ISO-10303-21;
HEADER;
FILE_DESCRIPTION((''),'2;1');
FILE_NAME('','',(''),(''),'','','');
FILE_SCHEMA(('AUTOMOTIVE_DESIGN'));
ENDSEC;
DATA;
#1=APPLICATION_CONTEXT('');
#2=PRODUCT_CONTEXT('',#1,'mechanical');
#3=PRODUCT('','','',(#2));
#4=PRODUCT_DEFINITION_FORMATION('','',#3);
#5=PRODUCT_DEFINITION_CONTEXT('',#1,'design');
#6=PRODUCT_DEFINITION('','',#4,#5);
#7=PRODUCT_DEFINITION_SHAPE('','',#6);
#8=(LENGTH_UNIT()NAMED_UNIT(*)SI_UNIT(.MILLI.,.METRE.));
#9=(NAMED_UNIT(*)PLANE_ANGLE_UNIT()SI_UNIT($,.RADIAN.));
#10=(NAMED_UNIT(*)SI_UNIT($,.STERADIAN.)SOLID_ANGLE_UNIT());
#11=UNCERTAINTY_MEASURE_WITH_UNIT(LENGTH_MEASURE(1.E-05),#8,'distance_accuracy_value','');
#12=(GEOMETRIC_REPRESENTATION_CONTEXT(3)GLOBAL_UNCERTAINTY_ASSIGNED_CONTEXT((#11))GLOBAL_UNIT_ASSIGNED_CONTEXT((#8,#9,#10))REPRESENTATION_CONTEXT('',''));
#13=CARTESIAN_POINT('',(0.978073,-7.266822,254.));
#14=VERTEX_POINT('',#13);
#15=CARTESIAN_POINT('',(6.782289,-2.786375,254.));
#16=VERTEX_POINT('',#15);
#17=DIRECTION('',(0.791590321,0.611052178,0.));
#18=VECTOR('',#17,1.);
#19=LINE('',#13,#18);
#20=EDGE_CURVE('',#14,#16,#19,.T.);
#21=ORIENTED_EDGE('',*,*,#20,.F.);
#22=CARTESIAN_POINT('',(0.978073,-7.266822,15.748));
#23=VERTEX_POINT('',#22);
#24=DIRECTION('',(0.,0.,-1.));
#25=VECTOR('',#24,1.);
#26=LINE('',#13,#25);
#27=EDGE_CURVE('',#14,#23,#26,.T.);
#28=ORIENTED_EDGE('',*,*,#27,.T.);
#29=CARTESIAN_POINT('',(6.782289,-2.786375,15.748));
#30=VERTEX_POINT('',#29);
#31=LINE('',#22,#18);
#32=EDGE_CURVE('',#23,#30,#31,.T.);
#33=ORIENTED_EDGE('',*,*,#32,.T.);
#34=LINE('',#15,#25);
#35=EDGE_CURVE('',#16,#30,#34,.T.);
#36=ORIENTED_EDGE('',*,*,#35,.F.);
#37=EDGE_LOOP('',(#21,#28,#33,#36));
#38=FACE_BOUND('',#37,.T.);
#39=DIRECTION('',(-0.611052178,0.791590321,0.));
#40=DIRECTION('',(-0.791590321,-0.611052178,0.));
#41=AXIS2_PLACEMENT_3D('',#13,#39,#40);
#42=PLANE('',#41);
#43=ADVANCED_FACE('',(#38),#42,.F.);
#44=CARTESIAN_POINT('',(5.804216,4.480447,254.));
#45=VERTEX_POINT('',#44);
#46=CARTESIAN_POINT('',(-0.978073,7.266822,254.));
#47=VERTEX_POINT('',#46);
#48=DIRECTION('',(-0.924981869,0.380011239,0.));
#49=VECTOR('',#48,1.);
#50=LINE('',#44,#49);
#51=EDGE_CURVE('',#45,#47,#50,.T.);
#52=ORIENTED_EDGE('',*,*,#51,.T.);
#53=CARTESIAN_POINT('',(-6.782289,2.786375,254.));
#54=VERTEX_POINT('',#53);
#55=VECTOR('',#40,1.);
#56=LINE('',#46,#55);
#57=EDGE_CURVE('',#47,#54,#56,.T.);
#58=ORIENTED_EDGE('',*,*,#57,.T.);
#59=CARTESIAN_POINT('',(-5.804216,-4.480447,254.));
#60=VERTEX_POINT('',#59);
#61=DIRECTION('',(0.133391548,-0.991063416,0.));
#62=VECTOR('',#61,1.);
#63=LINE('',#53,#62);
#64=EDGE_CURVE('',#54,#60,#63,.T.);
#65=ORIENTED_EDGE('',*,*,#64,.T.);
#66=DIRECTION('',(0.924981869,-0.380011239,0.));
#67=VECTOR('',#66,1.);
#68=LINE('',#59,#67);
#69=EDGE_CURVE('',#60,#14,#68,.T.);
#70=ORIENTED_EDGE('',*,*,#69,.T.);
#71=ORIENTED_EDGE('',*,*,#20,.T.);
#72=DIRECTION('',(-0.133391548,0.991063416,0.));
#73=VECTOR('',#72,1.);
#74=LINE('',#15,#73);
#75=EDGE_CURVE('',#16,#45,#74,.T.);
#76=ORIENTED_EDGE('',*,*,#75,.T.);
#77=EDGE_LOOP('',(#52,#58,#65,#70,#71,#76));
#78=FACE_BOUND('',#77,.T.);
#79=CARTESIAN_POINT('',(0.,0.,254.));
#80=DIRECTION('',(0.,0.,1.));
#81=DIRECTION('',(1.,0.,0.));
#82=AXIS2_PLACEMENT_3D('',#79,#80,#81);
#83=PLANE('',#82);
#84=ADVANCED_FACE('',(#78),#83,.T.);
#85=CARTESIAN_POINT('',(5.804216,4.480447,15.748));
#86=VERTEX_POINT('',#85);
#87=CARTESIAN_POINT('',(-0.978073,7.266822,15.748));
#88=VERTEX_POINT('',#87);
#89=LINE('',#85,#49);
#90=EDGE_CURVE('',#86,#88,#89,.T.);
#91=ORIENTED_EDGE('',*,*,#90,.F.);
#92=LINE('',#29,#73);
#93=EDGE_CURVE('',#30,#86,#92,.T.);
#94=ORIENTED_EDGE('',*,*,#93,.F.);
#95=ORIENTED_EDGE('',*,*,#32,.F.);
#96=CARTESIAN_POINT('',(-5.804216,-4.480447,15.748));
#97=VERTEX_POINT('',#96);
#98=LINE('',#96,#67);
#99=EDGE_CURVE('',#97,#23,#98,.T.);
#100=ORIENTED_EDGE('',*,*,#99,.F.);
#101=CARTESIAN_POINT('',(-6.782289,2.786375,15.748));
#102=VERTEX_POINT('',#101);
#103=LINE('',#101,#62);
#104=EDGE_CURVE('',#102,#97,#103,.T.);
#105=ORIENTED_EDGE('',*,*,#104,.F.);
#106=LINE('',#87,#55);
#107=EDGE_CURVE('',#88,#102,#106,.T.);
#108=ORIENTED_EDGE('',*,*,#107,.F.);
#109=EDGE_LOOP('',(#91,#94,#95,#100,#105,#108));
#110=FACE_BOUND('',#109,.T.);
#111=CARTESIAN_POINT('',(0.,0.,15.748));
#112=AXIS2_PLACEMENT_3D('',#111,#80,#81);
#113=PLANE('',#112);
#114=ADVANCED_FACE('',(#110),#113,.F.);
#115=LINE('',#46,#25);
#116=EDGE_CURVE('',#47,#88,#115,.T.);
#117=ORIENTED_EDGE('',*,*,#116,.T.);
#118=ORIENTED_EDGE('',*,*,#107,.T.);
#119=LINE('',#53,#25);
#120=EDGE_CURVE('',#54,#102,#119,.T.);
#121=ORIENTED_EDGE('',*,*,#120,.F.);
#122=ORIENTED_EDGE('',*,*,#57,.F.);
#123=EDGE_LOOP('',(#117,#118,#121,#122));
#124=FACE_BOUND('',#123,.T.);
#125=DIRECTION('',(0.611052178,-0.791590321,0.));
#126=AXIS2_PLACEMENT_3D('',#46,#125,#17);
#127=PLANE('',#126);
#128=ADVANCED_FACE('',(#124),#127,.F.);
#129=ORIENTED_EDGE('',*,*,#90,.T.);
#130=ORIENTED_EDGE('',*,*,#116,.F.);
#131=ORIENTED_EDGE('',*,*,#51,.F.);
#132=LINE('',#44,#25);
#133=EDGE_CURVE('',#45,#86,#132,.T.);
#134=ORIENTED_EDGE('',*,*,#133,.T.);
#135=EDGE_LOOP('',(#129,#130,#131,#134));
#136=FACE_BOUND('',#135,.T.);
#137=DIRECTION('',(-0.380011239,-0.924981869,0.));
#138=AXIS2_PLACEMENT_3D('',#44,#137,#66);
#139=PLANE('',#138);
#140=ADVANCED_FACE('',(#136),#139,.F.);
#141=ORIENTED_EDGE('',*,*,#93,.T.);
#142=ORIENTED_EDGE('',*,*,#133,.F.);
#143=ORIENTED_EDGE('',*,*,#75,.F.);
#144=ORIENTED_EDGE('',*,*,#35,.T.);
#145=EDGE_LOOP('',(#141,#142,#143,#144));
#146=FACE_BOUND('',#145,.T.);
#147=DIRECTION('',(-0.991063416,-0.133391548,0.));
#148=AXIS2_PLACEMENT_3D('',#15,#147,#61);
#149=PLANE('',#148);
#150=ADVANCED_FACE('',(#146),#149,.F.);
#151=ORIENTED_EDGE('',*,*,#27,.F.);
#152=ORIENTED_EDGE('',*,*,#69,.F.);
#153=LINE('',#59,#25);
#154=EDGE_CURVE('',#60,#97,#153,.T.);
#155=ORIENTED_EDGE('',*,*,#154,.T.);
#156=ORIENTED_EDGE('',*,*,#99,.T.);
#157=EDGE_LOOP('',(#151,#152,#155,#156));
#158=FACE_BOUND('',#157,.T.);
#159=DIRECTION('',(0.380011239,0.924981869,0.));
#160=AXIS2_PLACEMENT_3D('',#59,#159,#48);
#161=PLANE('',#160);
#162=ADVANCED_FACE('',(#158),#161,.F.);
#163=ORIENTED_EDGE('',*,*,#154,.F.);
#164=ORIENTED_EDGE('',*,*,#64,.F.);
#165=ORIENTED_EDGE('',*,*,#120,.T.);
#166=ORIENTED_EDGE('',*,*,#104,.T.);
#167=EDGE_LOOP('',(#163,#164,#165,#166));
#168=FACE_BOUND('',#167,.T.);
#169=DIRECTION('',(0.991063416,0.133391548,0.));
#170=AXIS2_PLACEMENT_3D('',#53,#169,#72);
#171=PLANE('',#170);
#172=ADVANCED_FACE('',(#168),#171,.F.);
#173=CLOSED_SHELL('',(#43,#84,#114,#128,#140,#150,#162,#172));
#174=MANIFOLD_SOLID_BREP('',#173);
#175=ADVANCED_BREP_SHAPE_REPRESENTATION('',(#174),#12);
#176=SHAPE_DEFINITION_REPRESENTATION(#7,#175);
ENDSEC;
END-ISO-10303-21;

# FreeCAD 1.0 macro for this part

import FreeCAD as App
import Part
import Sketcher
from FreeCAD import Vector

doc = App.newDocument("Part")
params = doc.addObject("Spreadsheet::Sheet", "Params")
for row, (alias, value) in enumerate([
    ("pad1_length", "10 in"),
    ("pocket1_length", "0.62 in"),
], start=1):
    params.set(f"A{row}", alias)
    params.set(f"B{row}", "=" + value)
    params.setAlias(f"B{row}", alias)

body = doc.addObject("PartDesign::Body", "Body")

# Sketch on XY plane
sketch1 = body.newObject("Sketcher::SketchObject", "Sketch")
sketch1.AttachmentSupport = (doc.getObject("XY_Plane"), [""])
sketch1.MapMode = "FlatFace"
sketch1.addGeometry(Part.LineSegment(Vector(6, 4, 0), Vector(-1, 7, 0)), False)
sketch1.addGeometry(Part.LineSegment(Vector(-1, 7, 0), Vector(-7, 3, 0)), False)
sketch1.addGeometry(Part.LineSegment(Vector(-7, 3, 0), Vector(-6, -4, 0)), False)
sketch1.addGeometry(Part.LineSegment(Vector(-6, -4, 0), Vector(1, -7, 0)), False)
sketch1.addGeometry(Part.LineSegment(Vector(1, -7, 0), Vector(7, -3, 0)), False)
sketch1.addGeometry(Part.LineSegment(Vector(7, -3, 0), Vector(6, 4, 0)), False)
sketch1.addConstraint(Sketcher.Constraint("Coincident", 0, 2, 1, 1))
sketch1.addConstraint(Sketcher.Constraint("Coincident", 1, 2, 2, 1))
sketch1.addConstraint(Sketcher.Constraint("Coincident", 2, 2, 3, 1))
sketch1.addConstraint(Sketcher.Constraint("Coincident", 3, 2, 4, 1))
sketch1.addConstraint(Sketcher.Constraint("Coincident", 4, 2, 5, 1))
sketch1.addConstraint(Sketcher.Constraint("Coincident", 5, 2, 0, 1))
sketch1.addConstraint(Sketcher.Constraint("Symmetric", 0, 2, 3, 2, -1, 1))
sketch1.addConstraint(Sketcher.Constraint("Symmetric", 1, 2, 4, 2, -1, 1))
sketch1.addConstraint(Sketcher.Constraint("Symmetric", 2, 2, 5, 2, -1, 1))
sketch1.addConstraint(Sketcher.Constraint("Equal", 0, 1))
sketch1.addConstraint(Sketcher.Constraint("Equal", 1, 2))
sketch1.addConstraint(Sketcher.Constraint("Distance", 0, 7.332348))
sketch1.addConstraint(Sketcher.Constraint("DistanceX", 1, 2, -1, 1, 6.782289))
sketch1.addConstraint(Sketcher.Constraint("DistanceY", 2, 2, 0, 2, 11.74727))
sketch1.addConstraint(Sketcher.Constraint("DistanceX", 2, 2, 3, 2, 6.782289))
pad1 = body.newObject("PartDesign::Pad", "Pad")
pad1.Profile = sketch1
pad1.setExpression("Length", "Params.pad1_length")

# Sketch on XY plane
sketch2 = body.newObject("Sketcher::SketchObject", "Sketch001")
sketch2.AttachmentSupport = (doc.getObject("XY_Plane"), [""])
sketch2.MapMode = "FlatFace"
sketch2.addGeometry(Part.LineSegment(Vector(14, 7, 0), Vector(14, -13, 0)), False)
sketch2.addGeometry(Part.LineSegment(Vector(14, -13, 0), Vector(-10, -13, 0)), False)
sketch2.addGeometry(Part.LineSegment(Vector(-10, -13, 0), Vector(-10, 7, 0)), False)
sketch2.addGeometry(Part.LineSegment(Vector(-10, 7, 0), Vector(14, 7, 0)), False)
sketch2.addConstraint(Sketcher.Constraint("Coincident", 0, 2, 1, 1))
sketch2.addConstraint(Sketcher.Constraint("Coincident", 1, 2, 2, 1))
sketch2.addConstraint(Sketcher.Constraint("Coincident", 2, 2, 3, 1))
sketch2.addConstraint(Sketcher.Constraint("Coincident", 3, 2, 0, 1))
sketch2.addConstraint(Sketcher.Constraint("Vertical", 0))
sketch2.addConstraint(Sketcher.Constraint("Horizontal", 1))
sketch2.addConstraint(Sketcher.Constraint("Vertical", 2))
sketch2.addConstraint(Sketcher.Constraint("Horizontal", 3))
sketch2.addConstraint(Sketcher.Constraint("DistanceY", 0, 2, 0, 1, 20.528412))
sketch2.addConstraint(Sketcher.Constraint("DistanceX", 1, 2, 1, 1, 24.031674))
sketch2.addConstraint(Sketcher.Constraint("DistanceX", -1, 1, 0, 2, 13.81185))
sketch2.addConstraint(Sketcher.Constraint("DistanceY", 0, 2, -1, 1, 13.261589))
pocket1 = body.newObject("PartDesign::Pocket", "Pocket")
pocket1.Profile = sketch2
pocket1.setExpression("Length", "Params.pocket1_length")
pocket1.Reversed = True

doc.recompute()
